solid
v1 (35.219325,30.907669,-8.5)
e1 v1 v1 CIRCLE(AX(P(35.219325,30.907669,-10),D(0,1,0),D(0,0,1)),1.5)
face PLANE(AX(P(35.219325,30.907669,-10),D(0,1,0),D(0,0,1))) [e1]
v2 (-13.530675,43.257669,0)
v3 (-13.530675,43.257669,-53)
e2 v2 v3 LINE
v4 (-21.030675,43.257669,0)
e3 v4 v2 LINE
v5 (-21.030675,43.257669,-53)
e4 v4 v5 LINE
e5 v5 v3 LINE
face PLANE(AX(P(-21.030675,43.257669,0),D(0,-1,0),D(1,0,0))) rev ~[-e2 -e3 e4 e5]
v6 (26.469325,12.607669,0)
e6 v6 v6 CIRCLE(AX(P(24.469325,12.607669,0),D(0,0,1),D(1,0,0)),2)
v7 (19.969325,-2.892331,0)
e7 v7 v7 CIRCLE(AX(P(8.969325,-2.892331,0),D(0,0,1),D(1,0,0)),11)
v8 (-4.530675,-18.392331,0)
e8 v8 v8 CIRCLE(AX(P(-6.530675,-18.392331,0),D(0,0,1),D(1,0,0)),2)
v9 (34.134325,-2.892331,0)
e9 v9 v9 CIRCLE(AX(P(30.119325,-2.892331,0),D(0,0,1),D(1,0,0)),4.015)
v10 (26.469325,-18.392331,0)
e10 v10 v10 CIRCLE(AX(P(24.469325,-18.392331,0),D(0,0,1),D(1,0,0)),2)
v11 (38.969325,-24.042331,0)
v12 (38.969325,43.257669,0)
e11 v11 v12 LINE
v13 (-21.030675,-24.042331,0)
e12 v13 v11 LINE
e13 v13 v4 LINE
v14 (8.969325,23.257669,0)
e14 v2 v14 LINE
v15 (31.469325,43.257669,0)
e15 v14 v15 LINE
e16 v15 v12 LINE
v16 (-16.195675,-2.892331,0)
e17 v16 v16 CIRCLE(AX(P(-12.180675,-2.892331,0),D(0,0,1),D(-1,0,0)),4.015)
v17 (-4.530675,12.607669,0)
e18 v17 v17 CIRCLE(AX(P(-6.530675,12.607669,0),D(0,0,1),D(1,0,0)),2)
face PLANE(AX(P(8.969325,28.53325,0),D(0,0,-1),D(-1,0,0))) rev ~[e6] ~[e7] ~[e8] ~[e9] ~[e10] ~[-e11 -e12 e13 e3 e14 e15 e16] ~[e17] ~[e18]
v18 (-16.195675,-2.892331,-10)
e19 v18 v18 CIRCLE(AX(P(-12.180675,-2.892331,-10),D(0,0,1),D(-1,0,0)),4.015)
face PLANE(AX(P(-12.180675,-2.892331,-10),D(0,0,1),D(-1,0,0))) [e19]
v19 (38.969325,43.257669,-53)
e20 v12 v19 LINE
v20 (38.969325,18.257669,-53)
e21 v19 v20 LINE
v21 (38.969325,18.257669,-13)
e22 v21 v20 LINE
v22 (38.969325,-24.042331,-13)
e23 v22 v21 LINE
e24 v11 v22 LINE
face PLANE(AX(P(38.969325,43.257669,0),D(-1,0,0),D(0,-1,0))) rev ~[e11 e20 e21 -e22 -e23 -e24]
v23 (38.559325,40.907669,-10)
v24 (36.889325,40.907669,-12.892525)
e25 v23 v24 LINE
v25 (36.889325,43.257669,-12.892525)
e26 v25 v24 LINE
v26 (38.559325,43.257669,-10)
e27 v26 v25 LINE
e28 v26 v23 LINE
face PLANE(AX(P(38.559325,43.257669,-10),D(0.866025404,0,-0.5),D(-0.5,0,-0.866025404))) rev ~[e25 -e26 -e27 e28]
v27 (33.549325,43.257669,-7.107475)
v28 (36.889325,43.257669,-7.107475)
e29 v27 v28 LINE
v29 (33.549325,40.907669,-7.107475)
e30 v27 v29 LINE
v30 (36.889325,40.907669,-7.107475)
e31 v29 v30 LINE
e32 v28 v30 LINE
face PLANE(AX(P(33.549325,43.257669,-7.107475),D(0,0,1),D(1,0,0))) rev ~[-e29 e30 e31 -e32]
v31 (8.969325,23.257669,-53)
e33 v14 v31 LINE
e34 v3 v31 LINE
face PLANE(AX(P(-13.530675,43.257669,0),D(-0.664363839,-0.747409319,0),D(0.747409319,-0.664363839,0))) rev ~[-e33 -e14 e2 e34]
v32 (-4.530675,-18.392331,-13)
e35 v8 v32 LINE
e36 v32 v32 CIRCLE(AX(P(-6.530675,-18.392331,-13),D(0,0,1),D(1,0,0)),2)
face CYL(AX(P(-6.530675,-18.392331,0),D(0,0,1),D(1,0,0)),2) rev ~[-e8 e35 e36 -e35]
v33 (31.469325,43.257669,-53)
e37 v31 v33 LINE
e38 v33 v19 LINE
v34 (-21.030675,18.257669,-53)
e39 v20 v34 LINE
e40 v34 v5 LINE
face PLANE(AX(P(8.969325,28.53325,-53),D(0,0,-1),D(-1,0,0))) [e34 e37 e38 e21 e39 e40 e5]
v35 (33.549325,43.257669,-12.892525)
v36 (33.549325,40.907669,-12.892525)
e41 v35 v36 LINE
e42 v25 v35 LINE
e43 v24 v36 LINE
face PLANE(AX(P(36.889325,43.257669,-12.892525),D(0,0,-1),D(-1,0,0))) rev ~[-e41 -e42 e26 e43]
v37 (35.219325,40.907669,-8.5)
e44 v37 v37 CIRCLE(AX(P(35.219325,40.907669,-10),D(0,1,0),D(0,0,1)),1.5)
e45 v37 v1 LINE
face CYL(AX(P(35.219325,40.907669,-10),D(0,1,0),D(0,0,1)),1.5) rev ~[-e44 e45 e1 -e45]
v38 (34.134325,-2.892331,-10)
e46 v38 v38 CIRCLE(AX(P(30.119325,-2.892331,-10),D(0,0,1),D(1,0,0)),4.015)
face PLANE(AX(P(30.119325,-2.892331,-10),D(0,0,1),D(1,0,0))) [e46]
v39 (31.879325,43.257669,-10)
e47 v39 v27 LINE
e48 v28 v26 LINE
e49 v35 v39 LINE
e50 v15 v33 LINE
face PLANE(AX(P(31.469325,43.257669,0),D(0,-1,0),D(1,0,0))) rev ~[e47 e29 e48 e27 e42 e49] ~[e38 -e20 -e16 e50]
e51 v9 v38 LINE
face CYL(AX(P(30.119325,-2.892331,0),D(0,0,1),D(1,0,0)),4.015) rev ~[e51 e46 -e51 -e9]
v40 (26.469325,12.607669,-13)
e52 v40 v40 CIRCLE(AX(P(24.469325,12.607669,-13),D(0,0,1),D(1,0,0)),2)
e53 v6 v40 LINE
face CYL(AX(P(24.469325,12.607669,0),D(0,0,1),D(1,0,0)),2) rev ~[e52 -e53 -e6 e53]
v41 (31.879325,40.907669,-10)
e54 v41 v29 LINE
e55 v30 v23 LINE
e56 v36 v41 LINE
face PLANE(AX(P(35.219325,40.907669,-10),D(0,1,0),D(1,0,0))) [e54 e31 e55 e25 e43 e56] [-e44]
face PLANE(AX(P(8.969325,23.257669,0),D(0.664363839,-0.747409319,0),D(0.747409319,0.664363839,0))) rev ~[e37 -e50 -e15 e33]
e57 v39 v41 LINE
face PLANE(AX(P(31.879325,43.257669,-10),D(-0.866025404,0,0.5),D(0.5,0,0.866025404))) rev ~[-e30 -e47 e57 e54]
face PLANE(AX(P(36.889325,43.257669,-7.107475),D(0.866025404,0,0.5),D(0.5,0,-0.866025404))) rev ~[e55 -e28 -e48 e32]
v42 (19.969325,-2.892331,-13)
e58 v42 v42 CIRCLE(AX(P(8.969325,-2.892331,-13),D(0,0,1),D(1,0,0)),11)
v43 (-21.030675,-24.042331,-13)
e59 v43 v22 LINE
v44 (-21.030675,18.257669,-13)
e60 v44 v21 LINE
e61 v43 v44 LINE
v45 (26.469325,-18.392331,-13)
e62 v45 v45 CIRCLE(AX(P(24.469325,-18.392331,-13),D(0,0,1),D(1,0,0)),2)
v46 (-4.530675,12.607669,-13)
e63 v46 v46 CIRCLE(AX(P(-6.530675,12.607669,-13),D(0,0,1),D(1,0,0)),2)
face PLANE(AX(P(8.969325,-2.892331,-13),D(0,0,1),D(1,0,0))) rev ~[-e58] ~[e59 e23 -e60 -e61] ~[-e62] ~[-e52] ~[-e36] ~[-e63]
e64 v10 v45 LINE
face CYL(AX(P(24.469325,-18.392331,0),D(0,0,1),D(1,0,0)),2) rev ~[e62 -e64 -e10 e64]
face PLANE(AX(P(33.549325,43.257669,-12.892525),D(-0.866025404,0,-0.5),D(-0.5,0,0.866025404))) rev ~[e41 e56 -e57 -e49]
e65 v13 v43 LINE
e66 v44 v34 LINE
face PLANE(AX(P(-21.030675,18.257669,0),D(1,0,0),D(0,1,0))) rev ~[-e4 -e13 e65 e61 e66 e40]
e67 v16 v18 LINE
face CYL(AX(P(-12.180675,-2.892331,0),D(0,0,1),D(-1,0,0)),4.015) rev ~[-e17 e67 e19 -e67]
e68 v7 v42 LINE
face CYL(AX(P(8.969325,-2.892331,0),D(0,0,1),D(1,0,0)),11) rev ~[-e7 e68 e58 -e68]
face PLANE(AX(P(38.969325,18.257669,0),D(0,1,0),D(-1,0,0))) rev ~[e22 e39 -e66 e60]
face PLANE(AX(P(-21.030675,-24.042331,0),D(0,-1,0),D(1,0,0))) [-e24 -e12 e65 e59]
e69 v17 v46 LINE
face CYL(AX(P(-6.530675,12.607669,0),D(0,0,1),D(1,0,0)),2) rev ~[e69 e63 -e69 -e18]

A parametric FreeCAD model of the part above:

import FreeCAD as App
import Part
import Sketcher
from FreeCAD import Vector
Q = App.Units.Quantity


def add_polygon(sketch, points):
    """Adds a closed chain of lines whose ends are joined by coincident constraints."""
    first, n = sketch.GeometryCount, len(points)
    for a, b in zip(points, points[1:] + points[:1]):
        sketch.addGeometry(Part.LineSegment(App.Vector(*a, 0), App.Vector(*b, 0)), False)
    for i in range(n):
        sketch.addConstraint(Sketcher.Constraint("Coincident", first + i, 2, first + (i + 1) % n, 1))

doc = App.newDocument("Part")
params = doc.addObject("Spreadsheet::Sheet", "Params")
for row, (alias, value) in enumerate([
    ("sketch1_width", "60 mm"),
    ("sketch1_height", "42.3 mm"),
    ("pad1_length", "13 mm"),
    ("sketch2_diameter", "22 mm"),
    ("sketch2_diameter2", "4 mm"),
    ("sketch3_diameter", "8.03 mm"),
    ("pocket2_length", "10 mm"),
    ("sketch4_width", "60 mm"),
    ("sketch4_height", "25 mm"),
    ("sketch4_width2", "7.5 mm"),
    ("pad2_length", "53 mm"),
    ("sketch5_width", "3.34 mm"),
    ("sketch5_length", "3.34 mm"),
    ("pocket3_length", "2.35 mm"),
    ("sketch6_diameter", "3 mm"),
    ("pocket4_length", "10 mm"),
], start=1):
    params.set(f"A{row}", alias)
    params.set(f"B{row}", "=" + value)
    params.setAlias(f"B{row}", alias)

body = doc.addObject("PartDesign::Body", "Body")

# Sketch on XY plane
sketch1 = doc.addObject("Sketcher::SketchObject", "Sketch")
body.addObject(sketch1)
sketch1.AttachmentSupport = (doc.XY_Plane, [""])
sketch1.MapMode = "FlatFace"
add_polygon(sketch1, [(-21, 18), (-21, -24), (39, -24), (39, 18)])  # lines 0-3
sketch1.addConstraint([
    Sketcher.Constraint("Vertical", 0),
    Sketcher.Constraint("Horizontal", 1),
    Sketcher.Constraint("Vertical", 2),
    Sketcher.Constraint("Horizontal", 3),
    Sketcher.Constraint("DistanceX", 1, 1, 1, 2, 60.0),
    Sketcher.Constraint("DistanceY", 0, 2, 0, 1, 42.3),
    Sketcher.Constraint("DistanceY", 0, 2, -1, 1, 24.042331),
    Sketcher.Constraint("DistanceX", 0, 2, -1, 1, 21.030675),
])
sketch1.setExpression("Constraints[8]", "Params.sketch1_width")
sketch1.setExpression("Constraints[9]", "Params.sketch1_height")
pad1 = doc.addObject("PartDesign::Pad", "Pad")
body.addObject(pad1)
pad1.Profile = sketch1
pad1.setExpression("Length", "Params.pad1_length")
pad1.Reversed = True

# Sketch on XY plane
sketch2 = doc.addObject("Sketcher::SketchObject", "Sketch001")
body.addObject(sketch2)
sketch2.AttachmentSupport = (doc.XY_Plane, [""])
sketch2.MapMode = "FlatFace"
sketch2.addGeometry([
    Part.Circle(Vector(9, -2.9, 0), Vector(0, 0, 1), 11),  # 0
    Part.Circle(Vector(24.5, 12.6, 0), Vector(0, 0, 1), 2),  # 1
    Part.Circle(Vector(-6.5, 12.6, 0), Vector(0, 0, 1), 2),  # 2
    Part.Circle(Vector(24.5, -18.4, 0), Vector(0, 0, 1), 2),  # 3
    Part.Circle(Vector(-6.5, -18.4, 0), Vector(0, 0, 1), 2),  # 4
], False)
sketch2.addConstraint([
    Sketcher.Constraint("Equal", 1, 2),
    Sketcher.Constraint("Equal", 2, 3),
    Sketcher.Constraint("Equal", 3, 4),
    Sketcher.Constraint("Horizontal", 1, 3, 2, 3),
    Sketcher.Constraint("Horizontal", 3, 3, 4, 3),
    Sketcher.Constraint("Vertical", 1, 3, 3, 3),
    Sketcher.Constraint("Vertical", 2, 3, 4, 3),
    Sketcher.Constraint("Diameter", 0, 22.0),
    Sketcher.Constraint("Diameter", 1, 4.0),
    Sketcher.Constraint("DistanceX", 2, 3, 1, 3, 31.0),
    Sketcher.Constraint("DistanceY", 3, 3, 1, 3, 31.0),
    Sketcher.Constraint("DistanceX", 0, 3, 1, 3, 15.5),
    Sketcher.Constraint("DistanceY", 0, 3, 1, 3, 15.5),
    Sketcher.Constraint("DistanceY", 0, 3, -1, 1, 2.892331),
    Sketcher.Constraint("DistanceX", -1, 1, 0, 3, 8.969325),
])
sketch2.setExpression("Constraints[7]", "Params.sketch2_diameter")
sketch2.setExpression("Constraints[8]", "Params.sketch2_diameter2")
pocket1 = doc.addObject("PartDesign::Pocket", "Pocket")
body.addObject(pocket1)
pocket1.Profile = sketch2
pocket1.Type = "ThroughAll"

# Sketch on XY plane
sketch3 = doc.addObject("Sketcher::SketchObject", "Sketch002")
body.addObject(sketch3)
sketch3.AttachmentSupport = (doc.XY_Plane, [""])
sketch3.MapMode = "FlatFace"
sketch3.addGeometry([
    Part.Circle(Vector(30.1, -2.9, 0), Vector(0, 0, 1), 4),
    Part.Circle(Vector(-12.2, -2.9, 0), Vector(0, 0, 1), 4),
], False)
sketch3.addConstraint([
    Sketcher.Constraint("Equal", 0, 1),
    Sketcher.Constraint("Horizontal", 0, 3, 1, 3),
    Sketcher.Constraint("Diameter", 0, 8.03),
    Sketcher.Constraint("DistanceX", 1, 3, 0, 3, 42.3),
    Sketcher.Constraint("DistanceY", 0, 3, -1, 1, 2.892331),
    Sketcher.Constraint("DistanceX", -1, 1, 0, 3, 30.119325),
])
sketch3.setExpression("Constraints[2]", "Params.sketch3_diameter")
pocket2 = doc.addObject("PartDesign::Pocket", "Pocket001")
body.addObject(pocket2)
pocket2.Profile = sketch3
pocket2.setExpression("Length", "Params.pocket2_length")

# Sketch on XY plane
sketch4 = doc.addObject("Sketcher::SketchObject", "Sketch003")
body.addObject(sketch4)
sketch4.AttachmentSupport = (doc.XY_Plane, [""])
sketch4.MapMode = "FlatFace"
add_polygon(sketch4, [(-21, 43), (-21, 18), (39, 18), (39, 43), (31, 43), (9, 23), (-14, 43)])  # lines 0-6
sketch4.addConstraint([
    Sketcher.Constraint("Vertical", 0),
    Sketcher.Constraint("Horizontal", 1),
    Sketcher.Constraint("Vertical", 2),
    Sketcher.Constraint("Horizontal", 3),
    Sketcher.Constraint("Horizontal", 6),
    Sketcher.Constraint("Horizontal", 3, 2, 5, 2),
    Sketcher.Constraint("Equal", 3, 6),
    Sketcher.Constraint("Equal", 4, 5),
    Sketcher.Constraint("DistanceX", 1, 1, 1, 2, 60.0),
    Sketcher.Constraint("DistanceY", 0, 2, 0, 1, 25.0),
    Sketcher.Constraint("DistanceX", 3, 2, 3, 1, 7.5),
    Sketcher.Constraint("DistanceY", 4, 2, 3, 2, 20.0),
    Sketcher.Constraint("DistanceY", -1, 1, 0, 2, 18.257669),
    Sketcher.Constraint("DistanceX", 0, 2, -1, 1, 21.030675),
])
sketch4.setExpression("Constraints[15]", "Params.sketch4_width")
sketch4.setExpression("Constraints[16]", "Params.sketch4_height")
sketch4.setExpression("Constraints[17]", "Params.sketch4_width2")
pad2 = doc.addObject("PartDesign::Pad", "Pad001")
body.addObject(pad2)
pad2.Profile = sketch4
pad2.setExpression("Length", "Params.pad2_length")
pad2.Reversed = True

# Sketch on XZ plane
sketch5 = doc.addObject("Sketcher::SketchObject", "Sketch004")
body.addObject(sketch5)
sketch5.AttachmentSupport = (doc.XZ_Plane, [""])
sketch5.MapMode = "FlatFace"
sketch5.AttachmentOffset = App.Placement(Vector(0, 0, -43.257669), App.Rotation())
add_polygon(sketch5, [(38.6, -10), (36.9, -12.9), (33.5, -12.9), (31.9, -10), (33.5, -7.1), (36.9, -7.1)])  # lines 0-5
sketch5.addConstraint([
    Sketcher.Constraint("Horizontal", 1),
    Sketcher.Constraint("Horizontal", 4),
    Sketcher.Constraint("Parallel", 0, 3),
    Sketcher.Constraint("Parallel", 2, 5),
    Sketcher.Constraint("Horizontal", 2, 2, 5, 2),
    Sketcher.Constraint("Vertical", 1, 2, 3, 2),
    Sketcher.Constraint("Vertical", 0, 2, 4, 2),
    Sketcher.Constraint("Angle", 0, Q("-120 deg")),
    Sketcher.Constraint("DistanceY", 2, 2, -1, 1, 10.0),
    Sketcher.Constraint("DistanceX", 1, 2, 1, 1, 3.34),
    Sketcher.Constraint("Distance", 0, 3.34),
    Sketcher.Constraint("DistanceX", -1, 1, 0, 2, 36.889325),
])
sketch5.setExpression("Constraints[15]", "Params.sketch5_width")
sketch5.setExpression("Constraints[16]", "Params.sketch5_length")
pocket3 = doc.addObject("PartDesign::Pocket", "Pocket002")
body.addObject(pocket3)
pocket3.Profile = sketch5
pocket3.setExpression("Length", "Params.pocket3_length")
pocket3.Reversed = True

# Sketch on XZ plane
sketch6 = doc.addObject("Sketcher::SketchObject", "Sketch005")
body.addObject(sketch6)
sketch6.AttachmentSupport = (doc.XZ_Plane, [""])
sketch6.MapMode = "FlatFace"
sketch6.AttachmentOffset = App.Placement(Vector(0, 0, -40.907669), App.Rotation())
sketch6.addGeometry(Part.Circle(Vector(35.2, -10, 0), Vector(0, 0, 1), 1.5), False)
sketch6.addConstraint([
    Sketcher.Constraint("Diameter", 0, 3.0),
    Sketcher.Constraint("DistanceY", 0, 3, -1, 1, 10.0),
    Sketcher.Constraint("DistanceX", -1, 1, 0, 3, 35.219325),
])
sketch6.setExpression("Constraints[0]", "Params.sketch6_diameter")
pocket4 = doc.addObject("PartDesign::Pocket", "Pocket003")
body.addObject(pocket4)
pocket4.Profile = sketch6
pocket4.setExpression("Length", "Params.pocket4_length")
pocket4.Reversed = True

doc.recompute()
